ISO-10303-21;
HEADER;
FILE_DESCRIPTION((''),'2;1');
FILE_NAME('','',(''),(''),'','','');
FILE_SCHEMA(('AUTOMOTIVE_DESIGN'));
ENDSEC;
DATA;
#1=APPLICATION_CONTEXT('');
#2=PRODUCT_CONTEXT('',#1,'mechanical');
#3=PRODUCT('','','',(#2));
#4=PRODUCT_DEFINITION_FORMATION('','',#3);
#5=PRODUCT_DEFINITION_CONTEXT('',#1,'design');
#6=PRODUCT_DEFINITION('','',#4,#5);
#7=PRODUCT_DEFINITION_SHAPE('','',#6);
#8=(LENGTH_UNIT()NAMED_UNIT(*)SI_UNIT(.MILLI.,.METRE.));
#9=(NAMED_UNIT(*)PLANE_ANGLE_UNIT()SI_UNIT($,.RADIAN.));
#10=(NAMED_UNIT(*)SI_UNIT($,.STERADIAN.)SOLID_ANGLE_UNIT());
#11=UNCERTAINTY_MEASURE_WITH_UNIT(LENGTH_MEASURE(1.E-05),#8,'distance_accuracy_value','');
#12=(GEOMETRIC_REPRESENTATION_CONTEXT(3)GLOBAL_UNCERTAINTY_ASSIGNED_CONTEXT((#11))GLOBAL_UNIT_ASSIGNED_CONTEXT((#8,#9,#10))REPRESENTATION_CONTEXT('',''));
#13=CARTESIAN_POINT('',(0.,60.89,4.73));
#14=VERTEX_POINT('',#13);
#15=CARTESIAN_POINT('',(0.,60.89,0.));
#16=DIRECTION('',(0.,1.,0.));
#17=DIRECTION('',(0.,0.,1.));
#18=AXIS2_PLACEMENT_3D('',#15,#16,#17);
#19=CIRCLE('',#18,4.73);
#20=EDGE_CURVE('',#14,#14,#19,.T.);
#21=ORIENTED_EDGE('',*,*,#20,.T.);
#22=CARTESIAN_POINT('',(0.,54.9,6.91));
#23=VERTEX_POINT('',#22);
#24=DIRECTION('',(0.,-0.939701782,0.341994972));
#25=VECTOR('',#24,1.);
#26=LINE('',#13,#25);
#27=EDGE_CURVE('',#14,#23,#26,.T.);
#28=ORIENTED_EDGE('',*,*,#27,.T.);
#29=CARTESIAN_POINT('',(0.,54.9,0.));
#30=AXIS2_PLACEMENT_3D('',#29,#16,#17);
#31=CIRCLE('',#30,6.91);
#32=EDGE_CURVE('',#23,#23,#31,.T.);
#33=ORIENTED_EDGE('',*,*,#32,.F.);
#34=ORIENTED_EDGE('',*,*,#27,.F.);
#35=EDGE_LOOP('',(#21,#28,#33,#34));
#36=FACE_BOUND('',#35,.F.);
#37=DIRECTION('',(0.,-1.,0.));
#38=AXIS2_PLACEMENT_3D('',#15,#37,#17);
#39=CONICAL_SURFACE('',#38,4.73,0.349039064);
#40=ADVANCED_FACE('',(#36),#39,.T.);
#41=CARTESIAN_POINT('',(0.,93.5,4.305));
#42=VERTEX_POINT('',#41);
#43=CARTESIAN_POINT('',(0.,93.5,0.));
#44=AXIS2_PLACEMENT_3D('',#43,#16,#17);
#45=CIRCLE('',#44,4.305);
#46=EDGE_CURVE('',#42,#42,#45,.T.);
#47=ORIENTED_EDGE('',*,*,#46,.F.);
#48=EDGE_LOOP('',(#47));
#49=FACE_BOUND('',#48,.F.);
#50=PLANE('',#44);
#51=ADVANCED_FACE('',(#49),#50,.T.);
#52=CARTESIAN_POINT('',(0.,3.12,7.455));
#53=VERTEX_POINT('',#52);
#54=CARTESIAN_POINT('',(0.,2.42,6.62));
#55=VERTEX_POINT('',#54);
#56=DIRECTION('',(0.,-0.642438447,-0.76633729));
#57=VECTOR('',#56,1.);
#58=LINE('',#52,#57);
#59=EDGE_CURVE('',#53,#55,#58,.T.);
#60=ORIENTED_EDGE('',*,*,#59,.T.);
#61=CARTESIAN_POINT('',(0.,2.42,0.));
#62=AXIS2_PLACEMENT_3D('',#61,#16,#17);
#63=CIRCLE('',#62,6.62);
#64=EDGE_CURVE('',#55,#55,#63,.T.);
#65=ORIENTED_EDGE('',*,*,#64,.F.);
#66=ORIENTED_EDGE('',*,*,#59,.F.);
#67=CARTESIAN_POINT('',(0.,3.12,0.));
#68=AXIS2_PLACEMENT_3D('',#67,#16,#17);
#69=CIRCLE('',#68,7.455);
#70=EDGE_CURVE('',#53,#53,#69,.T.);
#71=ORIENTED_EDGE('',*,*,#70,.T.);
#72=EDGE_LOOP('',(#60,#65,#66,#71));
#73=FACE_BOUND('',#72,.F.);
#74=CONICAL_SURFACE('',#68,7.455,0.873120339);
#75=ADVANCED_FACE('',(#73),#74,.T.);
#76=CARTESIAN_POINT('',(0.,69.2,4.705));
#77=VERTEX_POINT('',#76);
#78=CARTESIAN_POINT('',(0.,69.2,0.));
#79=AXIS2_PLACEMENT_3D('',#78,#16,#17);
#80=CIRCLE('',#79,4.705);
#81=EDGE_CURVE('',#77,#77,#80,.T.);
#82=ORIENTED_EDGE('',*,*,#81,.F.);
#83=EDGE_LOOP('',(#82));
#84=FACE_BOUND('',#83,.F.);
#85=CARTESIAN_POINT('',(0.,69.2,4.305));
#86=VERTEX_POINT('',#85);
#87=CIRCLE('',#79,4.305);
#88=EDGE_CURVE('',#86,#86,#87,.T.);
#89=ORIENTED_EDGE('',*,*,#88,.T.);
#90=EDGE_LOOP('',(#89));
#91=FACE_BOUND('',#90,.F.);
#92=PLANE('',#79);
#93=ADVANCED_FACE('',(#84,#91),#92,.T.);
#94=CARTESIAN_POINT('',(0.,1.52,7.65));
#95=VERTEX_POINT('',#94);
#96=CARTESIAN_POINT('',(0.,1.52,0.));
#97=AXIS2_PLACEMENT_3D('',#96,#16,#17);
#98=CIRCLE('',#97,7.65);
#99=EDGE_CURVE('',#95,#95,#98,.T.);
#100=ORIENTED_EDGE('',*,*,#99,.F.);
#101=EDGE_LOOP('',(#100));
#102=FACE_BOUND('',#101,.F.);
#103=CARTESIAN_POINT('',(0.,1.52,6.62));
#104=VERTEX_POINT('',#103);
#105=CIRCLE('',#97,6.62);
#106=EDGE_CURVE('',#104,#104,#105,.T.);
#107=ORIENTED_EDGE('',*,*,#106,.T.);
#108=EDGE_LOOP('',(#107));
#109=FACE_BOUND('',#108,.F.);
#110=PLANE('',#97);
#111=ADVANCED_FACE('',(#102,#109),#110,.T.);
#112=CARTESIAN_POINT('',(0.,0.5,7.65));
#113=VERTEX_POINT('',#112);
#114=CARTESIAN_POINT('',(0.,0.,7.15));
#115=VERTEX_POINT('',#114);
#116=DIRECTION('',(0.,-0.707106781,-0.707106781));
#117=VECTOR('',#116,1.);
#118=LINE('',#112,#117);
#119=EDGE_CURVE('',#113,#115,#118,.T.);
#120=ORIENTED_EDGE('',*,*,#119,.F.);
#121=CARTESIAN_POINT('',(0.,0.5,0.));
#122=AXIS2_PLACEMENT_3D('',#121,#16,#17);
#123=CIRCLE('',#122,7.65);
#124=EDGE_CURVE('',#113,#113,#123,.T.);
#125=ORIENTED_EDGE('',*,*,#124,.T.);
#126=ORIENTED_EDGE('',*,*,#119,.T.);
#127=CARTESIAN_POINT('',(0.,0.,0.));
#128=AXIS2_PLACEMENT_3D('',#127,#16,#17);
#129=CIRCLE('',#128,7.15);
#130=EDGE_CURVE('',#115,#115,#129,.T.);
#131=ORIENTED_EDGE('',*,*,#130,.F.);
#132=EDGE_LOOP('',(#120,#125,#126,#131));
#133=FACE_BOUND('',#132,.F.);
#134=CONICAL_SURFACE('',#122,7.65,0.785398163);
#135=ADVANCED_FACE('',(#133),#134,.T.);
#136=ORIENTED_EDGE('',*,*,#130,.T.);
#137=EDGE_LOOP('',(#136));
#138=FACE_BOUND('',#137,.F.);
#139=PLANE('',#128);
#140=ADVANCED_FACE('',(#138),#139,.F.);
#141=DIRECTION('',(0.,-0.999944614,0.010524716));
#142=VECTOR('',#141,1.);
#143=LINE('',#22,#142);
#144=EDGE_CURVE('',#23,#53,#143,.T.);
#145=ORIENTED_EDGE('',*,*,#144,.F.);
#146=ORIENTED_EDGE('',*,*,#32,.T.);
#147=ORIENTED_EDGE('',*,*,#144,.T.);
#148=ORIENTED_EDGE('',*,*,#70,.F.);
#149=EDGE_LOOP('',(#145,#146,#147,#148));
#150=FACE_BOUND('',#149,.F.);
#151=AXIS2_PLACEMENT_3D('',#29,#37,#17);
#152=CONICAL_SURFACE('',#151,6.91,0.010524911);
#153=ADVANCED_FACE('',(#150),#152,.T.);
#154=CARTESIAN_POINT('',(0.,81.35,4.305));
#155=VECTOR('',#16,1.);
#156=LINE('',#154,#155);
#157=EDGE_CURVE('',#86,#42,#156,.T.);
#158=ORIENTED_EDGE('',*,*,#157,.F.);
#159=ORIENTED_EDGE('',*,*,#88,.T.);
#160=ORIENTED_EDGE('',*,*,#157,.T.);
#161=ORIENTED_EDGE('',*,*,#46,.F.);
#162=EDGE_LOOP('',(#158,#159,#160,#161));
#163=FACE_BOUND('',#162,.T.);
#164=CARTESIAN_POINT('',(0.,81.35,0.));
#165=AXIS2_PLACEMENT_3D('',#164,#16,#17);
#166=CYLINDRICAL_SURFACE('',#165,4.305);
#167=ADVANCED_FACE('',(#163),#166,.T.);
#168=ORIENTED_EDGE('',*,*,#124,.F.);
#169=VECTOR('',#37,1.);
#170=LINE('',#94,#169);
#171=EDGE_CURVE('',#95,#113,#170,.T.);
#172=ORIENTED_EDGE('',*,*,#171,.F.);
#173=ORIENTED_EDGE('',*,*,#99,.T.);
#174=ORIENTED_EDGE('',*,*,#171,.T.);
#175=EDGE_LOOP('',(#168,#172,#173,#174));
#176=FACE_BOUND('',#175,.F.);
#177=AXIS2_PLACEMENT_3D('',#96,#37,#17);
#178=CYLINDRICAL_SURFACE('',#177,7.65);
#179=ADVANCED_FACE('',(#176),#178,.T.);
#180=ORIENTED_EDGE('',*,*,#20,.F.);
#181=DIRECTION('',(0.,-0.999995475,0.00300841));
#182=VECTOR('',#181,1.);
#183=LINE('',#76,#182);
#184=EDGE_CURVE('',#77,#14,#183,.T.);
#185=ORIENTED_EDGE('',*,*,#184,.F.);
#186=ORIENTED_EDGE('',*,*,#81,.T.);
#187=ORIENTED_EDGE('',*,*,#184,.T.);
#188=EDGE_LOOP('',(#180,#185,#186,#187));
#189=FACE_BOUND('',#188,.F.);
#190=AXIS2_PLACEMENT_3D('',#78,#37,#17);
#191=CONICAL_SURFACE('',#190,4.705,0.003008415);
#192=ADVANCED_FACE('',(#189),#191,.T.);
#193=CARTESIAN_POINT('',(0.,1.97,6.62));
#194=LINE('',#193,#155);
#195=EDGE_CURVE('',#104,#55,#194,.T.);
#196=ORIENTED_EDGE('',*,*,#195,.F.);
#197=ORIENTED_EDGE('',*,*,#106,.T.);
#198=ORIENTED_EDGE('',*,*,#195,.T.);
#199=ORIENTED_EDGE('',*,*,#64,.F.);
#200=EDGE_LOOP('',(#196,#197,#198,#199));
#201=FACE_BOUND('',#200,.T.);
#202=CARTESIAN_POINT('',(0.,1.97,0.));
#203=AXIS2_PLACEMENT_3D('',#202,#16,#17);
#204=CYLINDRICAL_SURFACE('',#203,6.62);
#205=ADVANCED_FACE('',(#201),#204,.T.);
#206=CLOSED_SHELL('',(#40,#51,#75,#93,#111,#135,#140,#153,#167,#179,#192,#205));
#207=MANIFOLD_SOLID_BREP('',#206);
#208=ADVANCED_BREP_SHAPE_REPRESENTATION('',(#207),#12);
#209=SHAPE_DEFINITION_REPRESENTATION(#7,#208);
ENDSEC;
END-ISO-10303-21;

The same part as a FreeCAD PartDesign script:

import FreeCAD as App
import Part
import Sketcher
Q = App.Units.Quantity

doc = App.newDocument("Part")
params = doc.addObject("Spreadsheet::Sheet", "Params")
for row, (alias, value) in enumerate([
    ("sketch1_width", "93.5 mm"),
    ("sketch1_width2", "24.3 mm"),
    ("sketch1_width3", "0.9 mm"),
    ("sketch1_height", "0.4 mm"),
    ("sketch1_width4", "1.02 mm"),
    ("revolution_angle", "360 deg"),
], start=1):
    params.set(f"A{row}", alias)
    params.set(f"B{row}", "=" + value)
    params.setAlias(f"B{row}", alias)

body = doc.addObject("PartDesign::Body", "Body")

# Sketch on YZ plane
sketch1 = body.newObject("Sketcher::SketchObject", "Sketch")
sketch1.AttachmentSupport = (doc.getObject("YZ_Plane"), [""])
sketch1.MapMode = "FlatFace"
sketch1.addGeometry([
    Part.LineSegment(App.Vector(0, 7.15, 0), App.Vector(0, 0, 0)),  # 0
    Part.LineSegment(App.Vector(0, 0, 0), App.Vector(93.5, 0, 0)),  # 1
    Part.LineSegment(App.Vector(93.5, 0, 0), App.Vector(93.5, 4.3, 0)),  # 2
    Part.LineSegment(App.Vector(93.5, 4.3, 0), App.Vector(69.2, 4.3, 0)),  # 3
    Part.LineSegment(App.Vector(69.2, 4.3, 0), App.Vector(69.2, 4.71, 0)),  # 4
    Part.LineSegment(App.Vector(69.2, 4.71, 0), App.Vector(60.89, 4.73, 0)),  # 5
    Part.LineSegment(App.Vector(60.89, 4.73, 0), App.Vector(54.9, 6.91, 0)),  # 6
    Part.LineSegment(App.Vector(54.9, 6.91, 0), App.Vector(3.12, 7.46, 0)),  # 7
    Part.LineSegment(App.Vector(3.12, 7.46, 0), App.Vector(2.42, 6.62, 0)),  # 8
    Part.LineSegment(App.Vector(2.42, 6.62, 0), App.Vector(1.52, 6.62, 0)),  # 9
    Part.LineSegment(App.Vector(1.52, 6.62, 0), App.Vector(1.52, 7.65, 0)),  # 10
    Part.LineSegment(App.Vector(1.52, 7.65, 0), App.Vector(0.5, 7.65, 0)),  # 11
    Part.LineSegment(App.Vector(0.5, 7.65, 0), App.Vector(0, 7.15, 0)),  # 12
], False)
sketch1.addConstraint([
    Sketcher.Constraint("Coincident", 0, 2, 1, 1),
    Sketcher.Constraint("Coincident", 1, 2, 2, 1),
    Sketcher.Constraint("Coincident", 2, 2, 3, 1),
    Sketcher.Constraint("Coincident", 3, 2, 4, 1),
    Sketcher.Constraint("Coincident", 4, 2, 5, 1),
    Sketcher.Constraint("Coincident", 5, 2, 6, 1),
    Sketcher.Constraint("Coincident", 6, 2, 7, 1),
    Sketcher.Constraint("Coincident", 7, 2, 8, 1),
    Sketcher.Constraint("Coincident", 8, 2, 9, 1),
    Sketcher.Constraint("Coincident", 9, 2, 10, 1),
    Sketcher.Constraint("Coincident", 10, 2, 11, 1),
    Sketcher.Constraint("Coincident", 11, 2, 12, 1),
    Sketcher.Constraint("Coincident", 12, 2, 0, 1),
    Sketcher.Constraint("Vertical", 0),
    Sketcher.Constraint("Horizontal", 1),
    Sketcher.Constraint("Vertical", 2),
    Sketcher.Constraint("Horizontal", 3),
    Sketcher.Constraint("Vertical", 4),
    Sketcher.Constraint("Horizontal", 9),
    Sketcher.Constraint("Vertical", 10),
    Sketcher.Constraint("Horizontal", 11),
    Sketcher.Constraint("Coincident", 0, 2, -1, 1),
    Sketcher.Constraint("Angle", 12, Q("-135 deg")),
    Sketcher.Constraint("DistanceX", 1, 1, 1, 2, Q("93.5 mm")),
    Sketcher.Constraint("DistanceX", 3, 2, 3, 1, Q("24.3 mm")),
    Sketcher.Constraint("DistanceX", 9, 2, 9, 1, Q("0.9 mm")),
    Sketcher.Constraint("DistanceY", 4, 1, 4, 2, Q("0.4 mm")),
    Sketcher.Constraint("DistanceX", 11, 2, 11, 1, Q("1.02 mm")),
    Sketcher.Constraint("DistanceY", 0, 2, 0, 1, Q("7.15 mm")),
    Sketcher.Constraint("DistanceY", 10, 1, 10, 2, Q("1.03 mm")),
    Sketcher.Constraint("DistanceX", -1, 1, 6, 2, Q("54.9 mm")),
    Sketcher.Constraint("DistanceX", -1, 1, 11, 2, Q("0.5 mm")),
    Sketcher.Constraint("DistanceX", 8, 2, 7, 2, Q("0.7 mm")),
    Sketcher.Constraint("DistanceY", 2, 1, 2, 2, Q("4.305 mm")),
    Sketcher.Constraint("DistanceX", -1, 1, 5, 2, Q("60.89 mm")),
    Sketcher.Constraint("DistanceY", -1, 1, 5, 2, Q("4.73 mm")),
    Sketcher.Constraint("DistanceY", -1, 1, 6, 2, Q("6.91 mm")),
    Sketcher.Constraint("DistanceY", 4, 2, 7, 2, Q("2.75 mm")),
])
sketch1.setExpression("Constraints[23]", "Params.sketch1_width")
sketch1.setExpression("Constraints[24]", "Params.sketch1_width2")
sketch1.setExpression("Constraints[25]", "Params.sketch1_width3")
sketch1.setExpression("Constraints[26]", "Params.sketch1_height")
sketch1.setExpression("Constraints[27]", "Params.sketch1_width4")
revolution = body.newObject("PartDesign::Revolution", "Revolution")
revolution.Profile = sketch1
revolution.ReferenceAxis = (sketch1, ["H_Axis"])
revolution.setExpression("Angle", "Params.revolution_angle")

doc.recompute()
